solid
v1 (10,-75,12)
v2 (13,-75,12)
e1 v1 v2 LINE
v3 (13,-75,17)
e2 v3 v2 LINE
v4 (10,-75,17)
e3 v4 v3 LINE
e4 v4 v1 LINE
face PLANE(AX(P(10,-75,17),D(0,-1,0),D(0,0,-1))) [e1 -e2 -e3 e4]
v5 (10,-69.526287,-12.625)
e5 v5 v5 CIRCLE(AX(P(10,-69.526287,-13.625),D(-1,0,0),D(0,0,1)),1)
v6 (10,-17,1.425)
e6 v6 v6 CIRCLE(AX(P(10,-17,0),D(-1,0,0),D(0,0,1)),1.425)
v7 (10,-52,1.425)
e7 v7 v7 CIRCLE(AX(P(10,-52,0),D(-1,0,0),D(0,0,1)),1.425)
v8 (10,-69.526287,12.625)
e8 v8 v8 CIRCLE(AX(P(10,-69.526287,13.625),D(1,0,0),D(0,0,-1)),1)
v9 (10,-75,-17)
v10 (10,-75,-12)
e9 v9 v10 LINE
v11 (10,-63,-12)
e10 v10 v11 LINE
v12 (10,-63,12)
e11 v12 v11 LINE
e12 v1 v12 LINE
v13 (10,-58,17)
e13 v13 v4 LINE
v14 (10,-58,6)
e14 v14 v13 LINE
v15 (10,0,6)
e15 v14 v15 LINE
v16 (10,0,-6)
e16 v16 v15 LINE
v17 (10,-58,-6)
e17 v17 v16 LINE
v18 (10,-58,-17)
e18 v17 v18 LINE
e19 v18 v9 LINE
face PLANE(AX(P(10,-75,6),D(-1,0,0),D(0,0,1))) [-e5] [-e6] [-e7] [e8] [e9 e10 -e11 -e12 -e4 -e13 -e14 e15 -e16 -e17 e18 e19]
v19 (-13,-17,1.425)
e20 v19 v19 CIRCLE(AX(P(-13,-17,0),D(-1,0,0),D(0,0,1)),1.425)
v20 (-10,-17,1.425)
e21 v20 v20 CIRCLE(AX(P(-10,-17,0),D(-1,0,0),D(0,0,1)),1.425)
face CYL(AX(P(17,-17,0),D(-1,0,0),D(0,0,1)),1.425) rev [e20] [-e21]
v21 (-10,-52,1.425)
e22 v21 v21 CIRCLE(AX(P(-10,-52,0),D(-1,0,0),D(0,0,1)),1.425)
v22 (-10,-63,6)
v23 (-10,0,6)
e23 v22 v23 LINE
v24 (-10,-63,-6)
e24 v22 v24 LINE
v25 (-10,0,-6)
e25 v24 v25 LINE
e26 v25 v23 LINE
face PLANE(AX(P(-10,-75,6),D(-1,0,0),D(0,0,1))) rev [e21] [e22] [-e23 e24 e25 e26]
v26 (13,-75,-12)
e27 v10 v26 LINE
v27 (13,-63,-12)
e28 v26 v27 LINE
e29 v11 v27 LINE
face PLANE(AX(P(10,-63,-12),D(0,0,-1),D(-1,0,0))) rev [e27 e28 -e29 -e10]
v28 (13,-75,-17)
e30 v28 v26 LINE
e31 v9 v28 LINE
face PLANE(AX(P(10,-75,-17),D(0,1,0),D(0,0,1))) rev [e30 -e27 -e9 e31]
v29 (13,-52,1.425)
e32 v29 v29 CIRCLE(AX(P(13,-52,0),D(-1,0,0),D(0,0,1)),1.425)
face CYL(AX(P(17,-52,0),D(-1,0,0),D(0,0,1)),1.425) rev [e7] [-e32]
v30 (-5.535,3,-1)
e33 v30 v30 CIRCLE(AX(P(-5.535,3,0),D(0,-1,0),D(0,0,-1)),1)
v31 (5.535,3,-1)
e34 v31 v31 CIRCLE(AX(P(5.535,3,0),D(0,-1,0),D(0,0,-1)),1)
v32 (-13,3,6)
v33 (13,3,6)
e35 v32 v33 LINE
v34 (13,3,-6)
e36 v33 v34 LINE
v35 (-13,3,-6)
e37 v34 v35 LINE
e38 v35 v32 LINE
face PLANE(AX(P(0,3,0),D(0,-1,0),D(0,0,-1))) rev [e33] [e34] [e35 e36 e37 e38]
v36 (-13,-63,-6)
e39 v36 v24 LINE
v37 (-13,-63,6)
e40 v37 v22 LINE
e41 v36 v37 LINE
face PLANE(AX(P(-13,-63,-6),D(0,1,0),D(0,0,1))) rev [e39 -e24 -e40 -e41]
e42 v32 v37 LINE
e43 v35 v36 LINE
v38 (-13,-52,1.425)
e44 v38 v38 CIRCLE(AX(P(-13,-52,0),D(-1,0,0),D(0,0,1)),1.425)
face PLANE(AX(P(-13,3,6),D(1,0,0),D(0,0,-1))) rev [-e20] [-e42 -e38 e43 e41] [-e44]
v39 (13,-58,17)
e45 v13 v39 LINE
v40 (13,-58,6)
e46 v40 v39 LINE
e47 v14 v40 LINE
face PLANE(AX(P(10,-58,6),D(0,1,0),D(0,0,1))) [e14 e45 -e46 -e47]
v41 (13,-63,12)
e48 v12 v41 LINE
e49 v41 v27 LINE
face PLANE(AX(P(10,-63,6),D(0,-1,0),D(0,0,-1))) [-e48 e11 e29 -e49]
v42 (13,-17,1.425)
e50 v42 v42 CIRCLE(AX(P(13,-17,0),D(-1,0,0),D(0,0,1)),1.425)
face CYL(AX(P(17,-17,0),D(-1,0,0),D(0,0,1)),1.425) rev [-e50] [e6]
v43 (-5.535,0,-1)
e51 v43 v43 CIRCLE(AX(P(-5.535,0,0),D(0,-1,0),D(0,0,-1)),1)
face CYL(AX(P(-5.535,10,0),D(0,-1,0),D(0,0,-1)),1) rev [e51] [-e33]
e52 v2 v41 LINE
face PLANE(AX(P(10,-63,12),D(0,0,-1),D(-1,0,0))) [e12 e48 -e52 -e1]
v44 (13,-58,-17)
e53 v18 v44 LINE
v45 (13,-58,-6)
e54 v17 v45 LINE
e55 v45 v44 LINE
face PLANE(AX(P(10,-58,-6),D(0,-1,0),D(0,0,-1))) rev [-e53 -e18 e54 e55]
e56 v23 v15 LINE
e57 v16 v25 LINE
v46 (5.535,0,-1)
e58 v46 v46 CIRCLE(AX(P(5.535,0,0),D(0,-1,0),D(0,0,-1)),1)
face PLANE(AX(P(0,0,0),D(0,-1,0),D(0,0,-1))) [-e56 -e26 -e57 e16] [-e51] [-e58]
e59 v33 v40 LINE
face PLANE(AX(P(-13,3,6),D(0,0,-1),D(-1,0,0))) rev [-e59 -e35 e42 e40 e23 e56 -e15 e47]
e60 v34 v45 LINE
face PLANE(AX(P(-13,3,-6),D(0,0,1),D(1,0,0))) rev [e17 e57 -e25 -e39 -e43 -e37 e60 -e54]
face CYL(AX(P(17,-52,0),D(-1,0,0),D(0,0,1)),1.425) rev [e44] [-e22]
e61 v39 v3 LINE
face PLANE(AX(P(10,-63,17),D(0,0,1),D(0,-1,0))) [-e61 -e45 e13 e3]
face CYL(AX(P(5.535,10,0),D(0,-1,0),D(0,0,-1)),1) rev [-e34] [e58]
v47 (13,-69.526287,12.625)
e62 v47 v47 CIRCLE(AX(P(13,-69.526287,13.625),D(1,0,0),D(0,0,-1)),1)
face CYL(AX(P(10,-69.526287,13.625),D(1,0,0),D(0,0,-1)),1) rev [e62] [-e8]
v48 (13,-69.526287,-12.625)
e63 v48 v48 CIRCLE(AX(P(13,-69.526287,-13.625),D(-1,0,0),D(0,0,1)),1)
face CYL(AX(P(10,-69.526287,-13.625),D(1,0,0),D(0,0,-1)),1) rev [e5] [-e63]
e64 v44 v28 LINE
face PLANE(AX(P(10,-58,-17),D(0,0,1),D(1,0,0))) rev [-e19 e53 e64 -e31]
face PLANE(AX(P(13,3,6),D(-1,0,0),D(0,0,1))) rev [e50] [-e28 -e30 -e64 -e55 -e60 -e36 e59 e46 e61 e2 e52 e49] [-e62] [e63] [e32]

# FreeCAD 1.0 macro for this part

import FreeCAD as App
import Part
import Sketcher

V = App.Vector
Q = App.Units.Quantity

doc = App.newDocument("Part")
body = doc.addObject("PartDesign::Body", "Body")

# Sketch on XZ plane
sketch1 = body.newObject("Sketcher::SketchObject", "Sketch")
sketch1.AttachmentSupport = (doc.getObject("XZ_Plane"), [""])
sketch1.MapMode = "FlatFace"
sketch1.addGeometry(Part.LineSegment(V(-13, -6, 0), V(-13, 6, 0)), False)
sketch1.addGeometry(Part.LineSegment(V(-13, 6, 0), V(13, 6, 0)), False)
sketch1.addGeometry(Part.LineSegment(V(13, 6, 0), V(13, -6, 0)), False)
sketch1.addGeometry(Part.LineSegment(V(13, -6, 0), V(-13, -6, 0)), False)
sketch1.addConstraint(Sketcher.Constraint("Coincident", 0, 2, 1, 1))
sketch1.addConstraint(Sketcher.Constraint("Coincident", 1, 2, 2, 1))
sketch1.addConstraint(Sketcher.Constraint("Coincident", 2, 2, 3, 1))
sketch1.addConstraint(Sketcher.Constraint("Coincident", 3, 2, 0, 1))
sketch1.addConstraint(Sketcher.Constraint("Vertical", 0))
sketch1.addConstraint(Sketcher.Constraint("Horizontal", 1))
sketch1.addConstraint(Sketcher.Constraint("Vertical", 2))
sketch1.addConstraint(Sketcher.Constraint("Horizontal", 3))
sketch1.addConstraint(Sketcher.Constraint("Symmetric", 0, 2, 2, 2, -1, 1))
sketch1.addConstraint(Sketcher.Constraint("DistanceX", 1, 1, 1, 2, Q("26 mm")))
sketch1.addConstraint(Sketcher.Constraint("DistanceY", 0, 1, 0, 2, Q("12 mm")))
pad1 = body.newObject("PartDesign::Pad", "Pad")
pad1.Profile = sketch1
pad1.Length = 3
pad1.Reversed = True

# Sketch on XZ plane
sketch2 = body.newObject("Sketcher::SketchObject", "Sketch001")
sketch2.AttachmentSupport = (doc.getObject("XZ_Plane"), [""])
sketch2.MapMode = "FlatFace"
sketch2.addGeometry(Part.Circle(V(-5.5, 0, 0), V(0, 0, 1), 1), False)
sketch2.addGeometry(Part.Circle(V(5.5, 0, 0), V(0, 0, 1), 1), False)
sketch2.addConstraint(Sketcher.Constraint("Equal", 0, 1))
sketch2.addConstraint(Sketcher.Constraint("Symmetric", 0, 3, 1, 3, -1, 1))
sketch2.addConstraint(Sketcher.Constraint("PointOnObject", 0, 3, -1))
sketch2.addConstraint(Sketcher.Constraint("Diameter", 0, Q("2 mm")))
sketch2.addConstraint(Sketcher.Constraint("DistanceX", 0, 3, 1, 3, Q("11.07 mm")))
pocket1 = body.newObject("PartDesign::Pocket", "Pocket")
pocket1.Profile = sketch2
pocket1.Length = 10

# Sketch on XZ plane
sketch3 = body.newObject("Sketcher::SketchObject", "Sketch002")
sketch3.AttachmentSupport = (doc.getObject("XZ_Plane"), [""])
sketch3.MapMode = "FlatFace"
sketch3.addGeometry(Part.LineSegment(V(-13, 6, 0), V(-13, -6, 0)), False)
sketch3.addGeometry(Part.LineSegment(V(-13, -6, 0), V(-10, -6, 0)), False)
sketch3.addGeometry(Part.LineSegment(V(-10, -6, 0), V(-10, 6, 0)), False)
sketch3.addGeometry(Part.LineSegment(V(-10, 6, 0), V(-13, 6, 0)), False)
sketch3.addConstraint(Sketcher.Constraint("Coincident", 0, 2, 1, 1))
sketch3.addConstraint(Sketcher.Constraint("Coincident", 1, 2, 2, 1))
sketch3.addConstraint(Sketcher.Constraint("Coincident", 2, 2, 3, 1))
sketch3.addConstraint(Sketcher.Constraint("Coincident", 3, 2, 0, 1))
sketch3.addConstraint(Sketcher.Constraint("Vertical", 0))
sketch3.addConstraint(Sketcher.Constraint("Horizontal", 1))
sketch3.addConstraint(Sketcher.Constraint("Vertical", 2))
sketch3.addConstraint(Sketcher.Constraint("Horizontal", 3))
sketch3.addConstraint(Sketcher.Constraint("DistanceX", 1, 1, 1, 2, Q("3 mm")))
sketch3.addConstraint(Sketcher.Constraint("DistanceY", 0, 2, 0, 1, Q("12 mm")))
sketch3.addConstraint(Sketcher.Constraint("DistanceX", 0, 2, -1, 1, Q("13 mm")))
sketch3.addConstraint(Sketcher.Constraint("DistanceY", 0, 2, -1, 1, Q("6 mm")))
pad2 = body.newObject("PartDesign::Pad", "Pad001")
pad2.Profile = sketch3
pad2.Length = 75
doc.recompute()

mirrored = body.newObject("PartDesign::Mirrored", "Mirrored")
mirrored.Originals = [pad2]
mirrored.MirrorPlane = (doc.getObject("YZ_Plane"), [""])
body.Tip = mirrored

# Sketch on YZ plane
sketch4 = body.newObject("Sketcher::SketchObject", "Sketch003")
sketch4.AttachmentSupport = (doc.getObject("YZ_Plane"), [""])
sketch4.MapMode = "FlatFace"
sketch4.AttachmentOffset = App.Placement(V(0, 0, -13), App.Rotation())
sketch4.addGeometry(Part.Circle(V(-17, 0, 0), V(0, 0, 1), 1.4), False)
sketch4.addConstraint(Sketcher.Constraint("PointOnObject", 0, 3, -1))
sketch4.addConstraint(Sketcher.Constraint("Diameter", 0, Q("2.85 mm")))
sketch4.addConstraint(Sketcher.Constraint("DistanceX", 0, 3, -1, 1, Q("17 mm")))
pocket2 = body.newObject("PartDesign::Pocket", "Pocket001")
pocket2.Profile = sketch4
pocket2.Length = 30
pocket2.Reversed = True
doc.recompute()

linearpattern = body.newObject("PartDesign::LinearPattern", "LinearPattern")
linearpattern.Originals = [pocket2]
linearpattern.Direction = (doc.getObject("Y_Axis"), [""])
linearpattern.Mode = "offset"
linearpattern.Offset = 35
linearpattern.Occurrences = 2
linearpattern.Reversed = True
body.Tip = linearpattern

# Sketch on YZ plane
sketch5 = body.newObject("Sketcher::SketchObject", "Sketch004")
sketch5.AttachmentSupport = (doc.getObject("YZ_Plane"), [""])
sketch5.MapMode = "FlatFace"
sketch5.AttachmentOffset = App.Placement(V(0, 0, 13), App.Rotation())
sketch5.addGeometry(Part.LineSegment(V(-58, 6, 0), V(-58, 17, 0)), False)
sketch5.addGeometry(Part.LineSegment(V(-58, 17, 0), V(-75, 17, 0)), False)
sketch5.addGeometry(Part.LineSegment(V(-75, 17, 0), V(-75, 12, 0)), False)
sketch5.addGeometry(Part.LineSegment(V(-75, 12, 0), V(-63, 12, 0)), False)
sketch5.addGeometry(Part.LineSegment(V(-63, 12, 0), V(-63, 6, 0)), False)
sketch5.addGeometry(Part.LineSegment(V(-63, 6, 0), V(-58, 6, 0)), False)
sketch5.addConstraint(Sketcher.Constraint("Coincident", 0, 2, 1, 1))
sketch5.addConstraint(Sketcher.Constraint("Coincident", 1, 2, 2, 1))
sketch5.addConstraint(Sketcher.Constraint("Coincident", 2, 2, 3, 1))
sketch5.addConstraint(Sketcher.Constraint("Coincident", 3, 2, 4, 1))
sketch5.addConstraint(Sketcher.Constraint("Coincident", 4, 2, 5, 1))
sketch5.addConstraint(Sketcher.Constraint("Coincident", 5, 2, 0, 1))
sketch5.addConstraint(Sketcher.Constraint("Vertical", 0))
sketch5.addConstraint(Sketcher.Constraint("Horizontal", 1))
sketch5.addConstraint(Sketcher.Constraint("Vertical", 2))
sketch5.addConstraint(Sketcher.Constraint("Horizontal", 3))
sketch5.addConstraint(Sketcher.Constraint("Vertical", 4))
sketch5.addConstraint(Sketcher.Constraint("Horizontal", 5))
sketch5.addConstraint(Sketcher.Constraint("Equal", 5, 2))
sketch5.addConstraint(Sketcher.Constraint("DistanceX", 1, 2, 1, 1, Q("17 mm")))
sketch5.addConstraint(Sketcher.Constraint("DistanceX", 3, 1, 3, 2, Q("12 mm")))
sketch5.addConstraint(Sketcher.Constraint("DistanceY", 0, 1, 0, 2, Q("11 mm")))
sketch5.addConstraint(Sketcher.Constraint("DistanceX", 0, 2, -1, 1, Q("58 mm")))
sketch5.addConstraint(Sketcher.Constraint("DistanceY", -1, 1, 0, 2, Q("17 mm")))
pad3 = body.newObject("PartDesign::Pad", "Pad002")
pad3.Profile = sketch5
pad3.Length = 3
pad3.Reversed = True
doc.recompute()

mirrored2 = body.newObject("PartDesign::Mirrored", "Mirrored001")
mirrored2.Originals = [pad3]
mirrored2.MirrorPlane = (doc.getObject("XY_Plane"), [""])
body.Tip = mirrored2

# Sketch on YZ plane
sketch6 = body.newObject("Sketcher::SketchObject", "Sketch005")
sketch6.AttachmentSupport = (doc.getObject("YZ_Plane"), [""])
sketch6.MapMode = "FlatFace"
sketch6.AttachmentOffset = App.Placement(V(0, 0, 13), App.Rotation())
sketch6.addGeometry(Part.Circle(V(-69.5, 13.6, 0), V(0, 0, 1), 1), False)
sketch6.addConstraint(Sketcher.Constraint("Diameter", 0, Q("2 mm")))
sketch6.addConstraint(Sketcher.Constraint("DistanceY", -1, 1, 0, 3, Q("13.625 mm")))
sketch6.addConstraint(Sketcher.Constraint("DistanceX", 0, 3, -1, 1, Q("69.526287 mm")))
pocket3 = body.newObject("PartDesign::Pocket", "Pocket002")
pocket3.Profile = sketch6
pocket3.Length = 3
doc.recompute()

mirrored3 = body.newObject("PartDesign::Mirrored", "Mirrored002")
mirrored3.Originals = [pocket3]
mirrored3.MirrorPlane = (doc.getObject("XY_Plane"), [""])
body.Tip = mirrored3

# Sketch on YZ plane
sketch7 = body.newObject("Sketcher::SketchObject", "Sketch006")
sketch7.AttachmentSupport = (doc.getObject("YZ_Plane"), [""])
sketch7.MapMode = "FlatFace"
sketch7.AttachmentOffset = App.Placement(V(0, 0, 13), App.Rotation())
sketch7.addGeometry(Part.LineSegment(V(-63, 6, 0), V(-75, 6, 0)), False)
sketch7.addGeometry(Part.LineSegment(V(-75, 6, 0), V(-75, -6, 0)), False)
sketch7.addGeometry(Part.LineSegment(V(-75, -6, 0), V(-63, -6, 0)), False)
sketch7.addGeometry(Part.LineSegment(V(-63, -6, 0), V(-63, 6, 0)), False)
sketch7.addConstraint(Sketcher.Constraint("Coincident", 0, 2, 1, 1))
sketch7.addConstraint(Sketcher.Constraint("Coincident", 1, 2, 2, 1))
sketch7.addConstraint(Sketcher.Constraint("Coincident", 2, 2, 3, 1))
sketch7.addConstraint(Sketcher.Constraint("Coincident", 3, 2, 0, 1))
sketch7.addConstraint(Sketcher.Constraint("Horizontal", 0))
sketch7.addConstraint(Sketcher.Constraint("Vertical", 1))
sketch7.addConstraint(Sketcher.Constraint("Horizontal", 2))
sketch7.addConstraint(Sketcher.Constraint("Vertical", 3))
sketch7.addConstraint(Sketcher.Constraint("Equal", 2, 1))
sketch7.addConstraint(Sketcher.Constraint("DistanceX", 0, 2, 0, 1, Q("12 mm")))
sketch7.addConstraint(Sketcher.Constraint("DistanceX", 0, 2, -1, 1, Q("75 mm")))
sketch7.addConstraint(Sketcher.Constraint("DistanceY", -1, 1, 0, 2, Q("6 mm")))
pocket4 = body.newObject("PartDesign::Pocket", "Pocket003")
pocket4.Profile = sketch7
pocket4.Type = "ThroughAll"

doc.recompute()
